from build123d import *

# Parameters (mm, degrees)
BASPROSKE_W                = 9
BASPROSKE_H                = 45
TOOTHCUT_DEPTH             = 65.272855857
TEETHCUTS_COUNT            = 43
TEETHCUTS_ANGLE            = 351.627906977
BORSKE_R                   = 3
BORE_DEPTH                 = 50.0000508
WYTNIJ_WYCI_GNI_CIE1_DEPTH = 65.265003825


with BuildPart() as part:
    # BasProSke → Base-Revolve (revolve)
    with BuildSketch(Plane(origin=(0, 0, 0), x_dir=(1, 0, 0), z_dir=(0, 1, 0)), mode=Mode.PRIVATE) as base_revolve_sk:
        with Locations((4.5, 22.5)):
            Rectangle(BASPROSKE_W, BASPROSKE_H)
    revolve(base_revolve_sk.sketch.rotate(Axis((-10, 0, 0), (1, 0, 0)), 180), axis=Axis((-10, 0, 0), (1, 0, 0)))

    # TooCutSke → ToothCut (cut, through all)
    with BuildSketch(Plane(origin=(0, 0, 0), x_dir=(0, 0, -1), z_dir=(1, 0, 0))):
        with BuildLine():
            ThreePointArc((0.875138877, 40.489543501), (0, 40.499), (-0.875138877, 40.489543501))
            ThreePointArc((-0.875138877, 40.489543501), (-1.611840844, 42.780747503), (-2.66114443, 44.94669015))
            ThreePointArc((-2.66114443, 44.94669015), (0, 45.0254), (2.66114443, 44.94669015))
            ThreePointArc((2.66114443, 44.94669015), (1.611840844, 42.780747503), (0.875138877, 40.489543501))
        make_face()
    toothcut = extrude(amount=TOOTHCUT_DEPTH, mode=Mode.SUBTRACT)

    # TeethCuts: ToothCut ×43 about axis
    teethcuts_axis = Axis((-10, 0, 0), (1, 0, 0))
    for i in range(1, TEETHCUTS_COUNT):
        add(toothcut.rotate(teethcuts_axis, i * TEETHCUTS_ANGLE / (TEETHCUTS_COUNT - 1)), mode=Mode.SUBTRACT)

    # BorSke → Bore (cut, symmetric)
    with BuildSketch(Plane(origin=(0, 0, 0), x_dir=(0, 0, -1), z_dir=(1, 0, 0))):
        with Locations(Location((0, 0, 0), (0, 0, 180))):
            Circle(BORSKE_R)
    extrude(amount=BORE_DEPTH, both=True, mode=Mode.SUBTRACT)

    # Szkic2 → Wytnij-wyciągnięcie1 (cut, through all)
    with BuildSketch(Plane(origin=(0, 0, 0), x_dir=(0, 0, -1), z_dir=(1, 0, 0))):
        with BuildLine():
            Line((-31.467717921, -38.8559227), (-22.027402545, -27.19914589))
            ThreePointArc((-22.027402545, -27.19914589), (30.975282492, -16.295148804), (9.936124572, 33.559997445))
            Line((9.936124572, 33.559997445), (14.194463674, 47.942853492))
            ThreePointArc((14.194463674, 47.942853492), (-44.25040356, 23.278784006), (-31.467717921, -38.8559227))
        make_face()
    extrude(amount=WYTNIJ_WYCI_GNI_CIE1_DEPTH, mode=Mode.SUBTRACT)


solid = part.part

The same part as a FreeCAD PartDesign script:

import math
import FreeCAD as App
import Part
import Sketcher


def add_polygon(sketch, points):
    """Adds a closed chain of lines whose ends are joined by coincident constraints."""
    first, n = sketch.GeometryCount, len(points)
    for a, b in zip(points, points[1:] + points[:1]):
        sketch.addGeometry(Part.LineSegment(App.Vector(*a, 0), App.Vector(*b, 0)), False)
    for i in range(n):
        sketch.addConstraint(Sketcher.Constraint("Coincident", first + i, 2, first + (i + 1) % n, 1))

doc = App.newDocument("Part")
body = doc.addObject("PartDesign::Body", "Body")

sketch1 = doc.addObject("Sketcher::SketchObject", "Sketch")
body.addObject(sketch1)
sketch1.AttachmentSupport = (doc.XZ_Plane, [""])
sketch1.MapMode = "FlatFace"
add_polygon(sketch1, [(0, -45), (0, 0), (9, 0), (9, -45)])
sketch1.addConstraint([
    Sketcher.Constraint("Vertical", 0),
    Sketcher.Constraint("Horizontal", 1),
    Sketcher.Constraint("Vertical", 2),
    Sketcher.Constraint("Horizontal", 3),
    Sketcher.Constraint("Coincident", 0, 2, -1, 1),
    Sketcher.Constraint("DistanceX", 1, 1, 1, 2, 9.0),
    Sketcher.Constraint("DistanceY", 0, 1, 0, 2, 45.0),
])
revolution = doc.addObject("PartDesign::Revolution", "Revolution")
body.addObject(revolution)
revolution.Profile = sketch1
revolution.ReferenceAxis = (sketch1, ["H_Axis"])
revolution.Angle = 360

sketch2 = doc.addObject("Sketcher::SketchObject", "Sketch001")
body.addObject(sketch2)
sketch2.AttachmentSupport = (doc.YZ_Plane, [""])
sketch2.MapMode = "FlatFace"
sketch2.addGeometry([
    Part.ArcOfCircle(Part.Circle(App.Vector(0.000001, 0, 0), App.Vector(0, 0, 1), 40.498999), math.radians(-1.238195), math.radians(1.238195)),
    Part.ArcOfCircle(Part.Circle(App.Vector(36.383111, -17.57775, 0), App.Vector(0, 0, 1), 17.2), math.radians(60.139995), math.radians(76.187457)),
    Part.ArcOfCircle(Part.Circle(App.Vector(0, 0, 0), App.Vector(0, 0, 1), 45.0254), math.radians(-3.388338), math.radians(3.388338)),
    Part.ArcOfCircle(Part.Circle(App.Vector(36.383111, 17.57775, 0), App.Vector(0, 0, 1), 17.2), math.radians(-76.187457), math.radians(-60.139995)),
], False)
sketch2.addConstraint([
    Sketcher.Constraint("Coincident", 0, 1, 1, 2),
    Sketcher.Constraint("Coincident", 1, 1, 2, 1),
    Sketcher.Constraint("Coincident", 2, 2, 3, 2),
    Sketcher.Constraint("Coincident", 3, 1, 0, 2),
    Sketcher.Constraint("Coincident", 0, 3, -1, 1),
    Sketcher.Constraint("Coincident", 2, 3, -1, 1),
    Sketcher.Constraint("Equal", 1, 3),
    Sketcher.Constraint("Symmetric", 1, 3, 3, 3, -1),
    Sketcher.Constraint("Radius", 1, 17.2),
    Sketcher.Constraint("Radius", 0, 40.498999),
    Sketcher.Constraint("Radius", 2, 45.0254),
    Sketcher.Constraint("DistanceY", 1, 3, 3, 3, 35.1555),
    Sketcher.Constraint("DistanceX", -1, 1, 1, 3, 36.383111),
])
pocket1 = doc.addObject("PartDesign::Pocket", "Pocket")
body.addObject(pocket1)
pocket1.Profile = sketch2
pocket1.Type = "ThroughAll"
pocket1.Reversed = True
doc.recompute()

polarpattern = doc.addObject("PartDesign::PolarPattern", "PolarPattern")
body.addObject(polarpattern)
polarpattern.Originals = [pocket1]
polarpattern.Axis = (doc.X_Axis, [""])
polarpattern.Angle = 360
polarpattern.Occurrences = 43
body.Tip = polarpattern

sketch3 = doc.addObject("Sketcher::SketchObject", "Sketch002")
body.addObject(sketch3)
sketch3.AttachmentSupport = (doc.YZ_Plane, [""])
sketch3.MapMode = "FlatFace"
sketch3.addGeometry(Part.Circle(App.Vector(0, 0, 0), App.Vector(0, 0, 1), 3), False)
sketch3.addConstraint([
    Sketcher.Constraint("Coincident", 0, 3, -1, 1),
    Sketcher.Constraint("Diameter", 0, 6.0),
])
pocket2 = doc.addObject("PartDesign::Pocket", "Pocket001")
body.addObject(pocket2)
pocket2.Profile = sketch3
pocket2.Length = 100.000102
pocket2.Midplane = True

sketch4 = doc.addObject("Sketcher::SketchObject", "Sketch003")
body.addObject(sketch4)
sketch4.AttachmentSupport = (doc.YZ_Plane, [""])
sketch4.MapMode = "FlatFace"
sketch4.addGeometry([
    Part.LineSegment(App.Vector(-38.855923, 31.467718, 0), App.Vector(-27.199146, 22.027403, 0)),
    Part.ArcOfCircle(Part.Circle(App.Vector(0, 0, 0), App.Vector(0, 0, 1), 35), math.radians(140.997496), math.radians(343.507533)),
    Part.LineSegment(App.Vector(33.559997, -9.936125, 0), App.Vector(47.942853, -14.194464, 0)),
    Part.ArcOfCircle(Part.Circle(App.Vector(0, 0, 0), App.Vector(0, 0, 1), 50), math.radians(-16.492467), math.radians(140.997496)),
], False)
sketch4.addConstraint([
    Sketcher.Constraint("Coincident", 0, 2, 1, 1),
    Sketcher.Constraint("Coincident", 1, 2, 2, 1),
    Sketcher.Constraint("Coincident", 2, 2, 3, 1),
    Sketcher.Constraint("Coincident", 3, 2, 0, 1),
    Sketcher.Constraint("Coincident", 1, 3, -1, 1),
    Sketcher.Constraint("Coincident", 3, 3, -1, 1),
    Sketcher.Constraint("Radius", 1, 35.0),
    Sketcher.Constraint("Radius", 3, 50.0),
    Sketcher.Constraint("DistanceX", 0, 2, 2, 2, 75.141999),
    Sketcher.Constraint("DistanceY", 2, 2, 1, 2, 4.258339),
    Sketcher.Constraint("DistanceX", 3, 2, 1, 2, 72.41592),
    Sketcher.Constraint("DistanceY", 2, 2, 3, 2, 45.662182),
])
pocket3 = doc.addObject("PartDesign::Pocket", "Pocket002")
body.addObject(pocket3)
pocket3.Profile = sketch4
pocket3.Type = "ThroughAll"
pocket3.Reversed = True

doc.recompute()
